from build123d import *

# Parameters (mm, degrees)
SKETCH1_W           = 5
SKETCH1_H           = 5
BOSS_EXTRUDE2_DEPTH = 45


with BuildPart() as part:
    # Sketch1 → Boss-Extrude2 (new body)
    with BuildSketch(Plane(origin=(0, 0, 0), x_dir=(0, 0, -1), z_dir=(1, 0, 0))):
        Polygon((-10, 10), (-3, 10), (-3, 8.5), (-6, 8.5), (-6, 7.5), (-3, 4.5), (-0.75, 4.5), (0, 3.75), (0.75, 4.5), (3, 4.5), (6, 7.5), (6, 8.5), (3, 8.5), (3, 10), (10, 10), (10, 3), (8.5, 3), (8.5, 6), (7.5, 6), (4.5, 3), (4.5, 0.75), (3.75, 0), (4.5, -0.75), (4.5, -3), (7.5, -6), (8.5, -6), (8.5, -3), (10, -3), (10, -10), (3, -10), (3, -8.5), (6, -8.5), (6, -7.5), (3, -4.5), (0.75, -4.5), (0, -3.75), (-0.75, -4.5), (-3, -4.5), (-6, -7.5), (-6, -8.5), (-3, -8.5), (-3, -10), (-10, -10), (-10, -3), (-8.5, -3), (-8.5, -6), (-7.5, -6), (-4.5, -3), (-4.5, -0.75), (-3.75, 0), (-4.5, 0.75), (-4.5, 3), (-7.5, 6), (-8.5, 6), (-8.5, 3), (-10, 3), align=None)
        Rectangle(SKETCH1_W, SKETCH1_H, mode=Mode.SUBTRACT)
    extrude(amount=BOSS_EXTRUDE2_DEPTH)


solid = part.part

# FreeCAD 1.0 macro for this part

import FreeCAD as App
import Part
import Sketcher
Q = App.Units.Quantity

doc = App.newDocument("Part")
body = doc.addObject("PartDesign::Body", "Body")

# Sketch on YZ plane
sketch1 = body.newObject("Sketcher::SketchObject", "Sketch")
sketch1.AttachmentSupport = (doc.getObject("YZ_Plane"), [""])
sketch1.MapMode = "FlatFace"
sketch1.addGeometry([
    Part.LineSegment(App.Vector(10, 3, 0), App.Vector(10, 10, 0)),  # 0
    Part.LineSegment(App.Vector(10, 10, 0), App.Vector(3, 10, 0)),  # 1
    Part.LineSegment(App.Vector(3, 10, 0), App.Vector(3, 8.5, 0)),  # 2
    Part.LineSegment(App.Vector(3, 8.5, 0), App.Vector(6, 8.5, 0)),  # 3
    Part.LineSegment(App.Vector(6, 8.5, 0), App.Vector(6, 7.5, 0)),  # 4
    Part.LineSegment(App.Vector(6, 7.5, 0), App.Vector(3, 4.5, 0)),  # 5
    Part.LineSegment(App.Vector(3, 4.5, 0), App.Vector(0.8, 4.5, 0)),  # 6
    Part.LineSegment(App.Vector(0.8, 4.5, 0), App.Vector(0, 3.8, 0)),  # 7
    Part.LineSegment(App.Vector(0, 3.8, 0), App.Vector(-0.8, 4.5, 0)),  # 8
    Part.LineSegment(App.Vector(-0.8, 4.5, 0), App.Vector(-3, 4.5, 0)),  # 9
    Part.LineSegment(App.Vector(-3, 4.5, 0), App.Vector(-6, 7.5, 0)),  # 10
    Part.LineSegment(App.Vector(-6, 7.5, 0), App.Vector(-6, 8.5, 0)),  # 11
    Part.LineSegment(App.Vector(-6, 8.5, 0), App.Vector(-3, 8.5, 0)),  # 12
    Part.LineSegment(App.Vector(-3, 8.5, 0), App.Vector(-3, 10, 0)),  # 13
    Part.LineSegment(App.Vector(-3, 10, 0), App.Vector(-10, 10, 0)),  # 14
    Part.LineSegment(App.Vector(-10, 10, 0), App.Vector(-10, 3, 0)),  # 15
    Part.LineSegment(App.Vector(-10, 3, 0), App.Vector(-8.5, 3, 0)),  # 16
    Part.LineSegment(App.Vector(-8.5, 3, 0), App.Vector(-8.5, 6, 0)),  # 17
    Part.LineSegment(App.Vector(-8.5, 6, 0), App.Vector(-7.5, 6, 0)),  # 18
    Part.LineSegment(App.Vector(-7.5, 6, 0), App.Vector(-4.5, 3, 0)),  # 19
    Part.LineSegment(App.Vector(-4.5, 3, 0), App.Vector(-4.5, 0.8, 0)),  # 20
    Part.LineSegment(App.Vector(-4.5, 0.8, 0), App.Vector(-3.8, 0, 0)),  # 21
    Part.LineSegment(App.Vector(-3.8, 0, 0), App.Vector(-4.5, -0.8, 0)),  # 22
    Part.LineSegment(App.Vector(-4.5, -0.8, 0), App.Vector(-4.5, -3, 0)),  # 23
    Part.LineSegment(App.Vector(-4.5, -3, 0), App.Vector(-7.5, -6, 0)),  # 24
    Part.LineSegment(App.Vector(-7.5, -6, 0), App.Vector(-8.5, -6, 0)),  # 25
    Part.LineSegment(App.Vector(-8.5, -6, 0), App.Vector(-8.5, -3, 0)),  # 26
    Part.LineSegment(App.Vector(-8.5, -3, 0), App.Vector(-10, -3, 0)),  # 27
    Part.LineSegment(App.Vector(-10, -3, 0), App.Vector(-10, -10, 0)),  # 28
    Part.LineSegment(App.Vector(-10, -10, 0), App.Vector(-3, -10, 0)),  # 29
    Part.LineSegment(App.Vector(-3, -10, 0), App.Vector(-3, -8.5, 0)),  # 30
    Part.LineSegment(App.Vector(-3, -8.5, 0), App.Vector(-6, -8.5, 0)),  # 31
    Part.LineSegment(App.Vector(-6, -8.5, 0), App.Vector(-6, -7.5, 0)),  # 32
    Part.LineSegment(App.Vector(-6, -7.5, 0), App.Vector(-3, -4.5, 0)),  # 33
    Part.LineSegment(App.Vector(-3, -4.5, 0), App.Vector(-0.8, -4.5, 0)),  # 34
    Part.LineSegment(App.Vector(-0.8, -4.5, 0), App.Vector(0, -3.8, 0)),  # 35
    Part.LineSegment(App.Vector(0, -3.8, 0), App.Vector(0.8, -4.5, 0)),  # 36
    Part.LineSegment(App.Vector(0.8, -4.5, 0), App.Vector(3, -4.5, 0)),  # 37
    Part.LineSegment(App.Vector(3, -4.5, 0), App.Vector(6, -7.5, 0)),  # 38
    Part.LineSegment(App.Vector(6, -7.5, 0), App.Vector(6, -8.5, 0)),  # 39
    Part.LineSegment(App.Vector(6, -8.5, 0), App.Vector(3, -8.5, 0)),  # 40
    Part.LineSegment(App.Vector(3, -8.5, 0), App.Vector(3, -10, 0)),  # 41
    Part.LineSegment(App.Vector(3, -10, 0), App.Vector(10, -10, 0)),  # 42
    Part.LineSegment(App.Vector(10, -10, 0), App.Vector(10, -3, 0)),  # 43
    Part.LineSegment(App.Vector(10, -3, 0), App.Vector(8.5, -3, 0)),  # 44
    Part.LineSegment(App.Vector(8.5, -3, 0), App.Vector(8.5, -6, 0)),  # 45
    Part.LineSegment(App.Vector(8.5, -6, 0), App.Vector(7.5, -6, 0)),  # 46
    Part.LineSegment(App.Vector(7.5, -6, 0), App.Vector(4.5, -3, 0)),  # 47
    Part.LineSegment(App.Vector(4.5, -3, 0), App.Vector(4.5, -0.8, 0)),  # 48
    Part.LineSegment(App.Vector(4.5, -0.8, 0), App.Vector(3.8, 0, 0)),  # 49
    Part.LineSegment(App.Vector(3.8, 0, 0), App.Vector(4.5, 0.8, 0)),  # 50
    Part.LineSegment(App.Vector(4.5, 0.8, 0), App.Vector(4.5, 3, 0)),  # 51
    Part.LineSegment(App.Vector(4.5, 3, 0), App.Vector(7.5, 6, 0)),  # 52
    Part.LineSegment(App.Vector(7.5, 6, 0), App.Vector(8.5, 6, 0)),  # 53
    Part.LineSegment(App.Vector(8.5, 6, 0), App.Vector(8.5, 3, 0)),  # 54
    Part.LineSegment(App.Vector(8.5, 3, 0), App.Vector(10, 3, 0)),  # 55
    Part.LineSegment(App.Vector(-2.5, 2.5, 0), App.Vector(2.5, 2.5, 0)),  # 56
    Part.LineSegment(App.Vector(2.5, 2.5, 0), App.Vector(2.5, -2.5, 0)),  # 57
    Part.LineSegment(App.Vector(2.5, -2.5, 0), App.Vector(-2.5, -2.5, 0)),  # 58
    Part.LineSegment(App.Vector(-2.5, -2.5, 0), App.Vector(-2.5, 2.5, 0)),  # 59
], False)
sketch1.addConstraint([
    Sketcher.Constraint("Coincident", 0, 2, 1, 1),
    Sketcher.Constraint("Coincident", 1, 2, 2, 1),
    Sketcher.Constraint("Coincident", 2, 2, 3, 1),
    Sketcher.Constraint("Coincident", 3, 2, 4, 1),
    Sketcher.Constraint("Coincident", 4, 2, 5, 1),
    Sketcher.Constraint("Coincident", 5, 2, 6, 1),
    Sketcher.Constraint("Coincident", 6, 2, 7, 1),
    Sketcher.Constraint("Coincident", 7, 2, 8, 1),
    Sketcher.Constraint("Coincident", 8, 2, 9, 1),
    Sketcher.Constraint("Coincident", 9, 2, 10, 1),
    Sketcher.Constraint("Coincident", 10, 2, 11, 1),
    Sketcher.Constraint("Coincident", 11, 2, 12, 1),
    Sketcher.Constraint("Coincident", 12, 2, 13, 1),
    Sketcher.Constraint("Coincident", 13, 2, 14, 1),
    Sketcher.Constraint("Coincident", 14, 2, 15, 1),
    Sketcher.Constraint("Coincident", 15, 2, 16, 1),
    Sketcher.Constraint("Coincident", 16, 2, 17, 1),
    Sketcher.Constraint("Coincident", 17, 2, 18, 1),
    Sketcher.Constraint("Coincident", 18, 2, 19, 1),
    Sketcher.Constraint("Coincident", 19, 2, 20, 1),
    Sketcher.Constraint("Coincident", 20, 2, 21, 1),
    Sketcher.Constraint("Coincident", 21, 2, 22, 1),
    Sketcher.Constraint("Coincident", 22, 2, 23, 1),
    Sketcher.Constraint("Coincident", 23, 2, 24, 1),
    Sketcher.Constraint("Coincident", 24, 2, 25, 1),
    Sketcher.Constraint("Coincident", 25, 2, 26, 1),
    Sketcher.Constraint("Coincident", 26, 2, 27, 1),
    Sketcher.Constraint("Coincident", 27, 2, 28, 1),
    Sketcher.Constraint("Coincident", 28, 2, 29, 1),
    Sketcher.Constraint("Coincident", 29, 2, 30, 1),
    Sketcher.Constraint("Coincident", 30, 2, 31, 1),
    Sketcher.Constraint("Coincident", 31, 2, 32, 1),
    Sketcher.Constraint("Coincident", 32, 2, 33, 1),
    Sketcher.Constraint("Coincident", 33, 2, 34, 1),
    Sketcher.Constraint("Coincident", 34, 2, 35, 1),
    Sketcher.Constraint("Coincident", 35, 2, 36, 1),
    Sketcher.Constraint("Coincident", 36, 2, 37, 1),
    Sketcher.Constraint("Coincident", 37, 2, 38, 1),
    Sketcher.Constraint("Coincident", 38, 2, 39, 1),
    Sketcher.Constraint("Coincident", 39, 2, 40, 1),
    Sketcher.Constraint("Coincident", 40, 2, 41, 1),
    Sketcher.Constraint("Coincident", 41, 2, 42, 1),
    Sketcher.Constraint("Coincident", 42, 2, 43, 1),
    Sketcher.Constraint("Coincident", 43, 2, 44, 1),
    Sketcher.Constraint("Coincident", 44, 2, 45, 1),
    Sketcher.Constraint("Coincident", 45, 2, 46, 1),
    Sketcher.Constraint("Coincident", 46, 2, 47, 1),
    Sketcher.Constraint("Coincident", 47, 2, 48, 1),
    Sketcher.Constraint("Coincident", 48, 2, 49, 1),
    Sketcher.Constraint("Coincident", 49, 2, 50, 1),
    Sketcher.Constraint("Coincident", 50, 2, 51, 1),
    Sketcher.Constraint("Coincident", 51, 2, 52, 1),
    Sketcher.Constraint("Coincident", 52, 2, 53, 1),
    Sketcher.Constraint("Coincident", 53, 2, 54, 1),
    Sketcher.Constraint("Coincident", 54, 2, 55, 1),
    Sketcher.Constraint("Coincident", 55, 2, 0, 1),
    Sketcher.Constraint("Coincident", 56, 2, 57, 1),
    Sketcher.Constraint("Coincident", 57, 2, 58, 1),
    Sketcher.Constraint("Coincident", 58, 2, 59, 1),
    Sketcher.Constraint("Coincident", 59, 2, 56, 1),
    Sketcher.Constraint("Vertical", 0),
    Sketcher.Constraint("Horizontal", 1),
    Sketcher.Constraint("Vertical", 2),
    Sketcher.Constraint("Horizontal", 3),
    Sketcher.Constraint("Vertical", 4),
    Sketcher.Constraint("Horizontal", 6),
    Sketcher.Constraint("Horizontal", 9),
    Sketcher.Constraint("Vertical", 11),
    Sketcher.Constraint("Horizontal", 12),
    Sketcher.Constraint("Vertical", 13),
    Sketcher.Constraint("Horizontal", 14),
    Sketcher.Constraint("Vertical", 15),
    Sketcher.Constraint("Horizontal", 16),
    Sketcher.Constraint("Vertical", 17),
    Sketcher.Constraint("Horizontal", 18),
    Sketcher.Constraint("Vertical", 20),
    Sketcher.Constraint("Vertical", 23),
    Sketcher.Constraint("Horizontal", 25),
    Sketcher.Constraint("Vertical", 26),
    Sketcher.Constraint("Horizontal", 27),
    Sketcher.Constraint("Vertical", 28),
    Sketcher.Constraint("Horizontal", 29),
    Sketcher.Constraint("Vertical", 30),
    Sketcher.Constraint("Horizontal", 31),
    Sketcher.Constraint("Vertical", 32),
    Sketcher.Constraint("Horizontal", 34),
    Sketcher.Constraint("Horizontal", 37),
    Sketcher.Constraint("Vertical", 39),
    Sketcher.Constraint("Horizontal", 40),
    Sketcher.Constraint("Vertical", 41),
    Sketcher.Constraint("Horizontal", 42),
    Sketcher.Constraint("Vertical", 43),
    Sketcher.Constraint("Horizontal", 44),
    Sketcher.Constraint("Vertical", 45),
    Sketcher.Constraint("Horizontal", 46),
    Sketcher.Constraint("Vertical", 48),
    Sketcher.Constraint("Vertical", 51),
    Sketcher.Constraint("Horizontal", 53),
    Sketcher.Constraint("Vertical", 54),
    Sketcher.Constraint("Horizontal", 55),
    Sketcher.Constraint("Horizontal", 56),
    Sketcher.Constraint("Vertical", 57),
    Sketcher.Constraint("Horizontal", 58),
    Sketcher.Constraint("Vertical", 59),
    Sketcher.Constraint("Symmetric", 0, 2, 28, 2, -1, 1),
    Sketcher.Constraint("Symmetric", 2, 2, 30, 2, -1, 1),
    Sketcher.Constraint("Symmetric", 4, 2, 32, 2, -1, 1),
    Sketcher.Constraint("Symmetric", 5, 2, 33, 2, -1, 1),
    Sketcher.Constraint("Symmetric", 7, 2, 35, 2, -1, 1),
    Sketcher.Constraint("Symmetric", 8, 2, 36, 2, -1, 1),
    Sketcher.Constraint("Symmetric", 10, 2, 38, 2, -1, 1),
    Sketcher.Constraint("Symmetric", 12, 2, 40, 2, -1, 1),
    Sketcher.Constraint("Symmetric", 14, 2, 42, 2, -1, 1),
    Sketcher.Constraint("Symmetric", 16, 2, 44, 2, -1, 1),
    Sketcher.Constraint("Symmetric", 18, 2, 46, 2, -1, 1),
    Sketcher.Constraint("Symmetric", 19, 2, 47, 2, -1, 1),
    Sketcher.Constraint("Symmetric", 21, 2, 49, 2, -1, 1),
    Sketcher.Constraint("Symmetric", 22, 2, 50, 2, -1, 1),
    Sketcher.Constraint("Symmetric", 24, 2, 52, 2, -1, 1),
    Sketcher.Constraint("Symmetric", 26, 2, 54, 2, -1, 1),
    Sketcher.Constraint("Symmetric", 56, 2, 58, 2, -1, 1),
    Sketcher.Constraint("Symmetric", 6, 2, 8, 2, -2),
    Sketcher.Constraint("Symmetric", 4, 2, 10, 2, -2),
    Sketcher.Constraint("Symmetric", 2, 2, 12, 2, -2),
    Sketcher.Constraint("Symmetric", 0, 2, 14, 2, -2),
    Sketcher.Constraint("Symmetric", 26, 2, 44, 2, -2),
    Sketcher.Constraint("Symmetric", 24, 2, 46, 2, -2),
    Sketcher.Constraint("Symmetric", 23, 2, 47, 2, -2),
    Sketcher.Constraint("PointOnObject", 7, 2, -2),
    Sketcher.Constraint("PointOnObject", 21, 2, -1),
    Sketcher.Constraint("Parallel", 5, 7),
    Sketcher.Constraint("Perpendicular", 7, 8),
    Sketcher.Constraint("Parallel", 8, 10),
    Sketcher.Constraint("Parallel", 10, 19),
    Sketcher.Constraint("Parallel", 19, 21),
    Sketcher.Constraint("Perpendicular", 21, 22),
    Sketcher.Constraint("Parallel", 33, 35),
    Sketcher.Constraint("Parallel", 36, 38),
    Sketcher.Constraint("Parallel", 47, 49),
    Sketcher.Constraint("Parallel", 50, 52),
    Sketcher.Constraint("Horizontal", 16, 2, 19, 2),
    Sketcher.Constraint("Vertical", 2, 2, 5, 2),
    Sketcher.Constraint("Equal", 42, 0),
    Sketcher.Constraint("Equal", 55, 2),
    Sketcher.Constraint("Equal", 53, 4),
    Sketcher.Constraint("Equal", 40, 17),
    Sketcher.Constraint("Equal", 37, 20),
    Sketcher.Constraint("Equal", 58, 57),
    Sketcher.Constraint("Equal", 8, 21),
    Sketcher.Constraint("DistanceX", 1, 2, 1, 1, Q("7 mm")),
    Sketcher.Constraint("DistanceX", 3, 1, 3, 2, Q("3 mm")),
    Sketcher.Constraint("DistanceX", 18, 1, 18, 2, Q("1 mm")),
    Sketcher.Constraint("DistanceX", 56, 1, 56, 2, Q("5 mm")),
    Sketcher.Constraint("DistanceX", 16, 1, 16, 2, Q("1.5 mm")),
    Sketcher.Constraint("DistanceX", -1, 1, 0, 2, Q("10 mm")),
    Sketcher.Constraint("DistanceY", 20, 2, 7, 2, Q("3 mm")),
])
pad1 = body.newObject("PartDesign::Pad", "Pad")
pad1.Profile = sketch1
pad1.Length = 45

doc.recompute()
